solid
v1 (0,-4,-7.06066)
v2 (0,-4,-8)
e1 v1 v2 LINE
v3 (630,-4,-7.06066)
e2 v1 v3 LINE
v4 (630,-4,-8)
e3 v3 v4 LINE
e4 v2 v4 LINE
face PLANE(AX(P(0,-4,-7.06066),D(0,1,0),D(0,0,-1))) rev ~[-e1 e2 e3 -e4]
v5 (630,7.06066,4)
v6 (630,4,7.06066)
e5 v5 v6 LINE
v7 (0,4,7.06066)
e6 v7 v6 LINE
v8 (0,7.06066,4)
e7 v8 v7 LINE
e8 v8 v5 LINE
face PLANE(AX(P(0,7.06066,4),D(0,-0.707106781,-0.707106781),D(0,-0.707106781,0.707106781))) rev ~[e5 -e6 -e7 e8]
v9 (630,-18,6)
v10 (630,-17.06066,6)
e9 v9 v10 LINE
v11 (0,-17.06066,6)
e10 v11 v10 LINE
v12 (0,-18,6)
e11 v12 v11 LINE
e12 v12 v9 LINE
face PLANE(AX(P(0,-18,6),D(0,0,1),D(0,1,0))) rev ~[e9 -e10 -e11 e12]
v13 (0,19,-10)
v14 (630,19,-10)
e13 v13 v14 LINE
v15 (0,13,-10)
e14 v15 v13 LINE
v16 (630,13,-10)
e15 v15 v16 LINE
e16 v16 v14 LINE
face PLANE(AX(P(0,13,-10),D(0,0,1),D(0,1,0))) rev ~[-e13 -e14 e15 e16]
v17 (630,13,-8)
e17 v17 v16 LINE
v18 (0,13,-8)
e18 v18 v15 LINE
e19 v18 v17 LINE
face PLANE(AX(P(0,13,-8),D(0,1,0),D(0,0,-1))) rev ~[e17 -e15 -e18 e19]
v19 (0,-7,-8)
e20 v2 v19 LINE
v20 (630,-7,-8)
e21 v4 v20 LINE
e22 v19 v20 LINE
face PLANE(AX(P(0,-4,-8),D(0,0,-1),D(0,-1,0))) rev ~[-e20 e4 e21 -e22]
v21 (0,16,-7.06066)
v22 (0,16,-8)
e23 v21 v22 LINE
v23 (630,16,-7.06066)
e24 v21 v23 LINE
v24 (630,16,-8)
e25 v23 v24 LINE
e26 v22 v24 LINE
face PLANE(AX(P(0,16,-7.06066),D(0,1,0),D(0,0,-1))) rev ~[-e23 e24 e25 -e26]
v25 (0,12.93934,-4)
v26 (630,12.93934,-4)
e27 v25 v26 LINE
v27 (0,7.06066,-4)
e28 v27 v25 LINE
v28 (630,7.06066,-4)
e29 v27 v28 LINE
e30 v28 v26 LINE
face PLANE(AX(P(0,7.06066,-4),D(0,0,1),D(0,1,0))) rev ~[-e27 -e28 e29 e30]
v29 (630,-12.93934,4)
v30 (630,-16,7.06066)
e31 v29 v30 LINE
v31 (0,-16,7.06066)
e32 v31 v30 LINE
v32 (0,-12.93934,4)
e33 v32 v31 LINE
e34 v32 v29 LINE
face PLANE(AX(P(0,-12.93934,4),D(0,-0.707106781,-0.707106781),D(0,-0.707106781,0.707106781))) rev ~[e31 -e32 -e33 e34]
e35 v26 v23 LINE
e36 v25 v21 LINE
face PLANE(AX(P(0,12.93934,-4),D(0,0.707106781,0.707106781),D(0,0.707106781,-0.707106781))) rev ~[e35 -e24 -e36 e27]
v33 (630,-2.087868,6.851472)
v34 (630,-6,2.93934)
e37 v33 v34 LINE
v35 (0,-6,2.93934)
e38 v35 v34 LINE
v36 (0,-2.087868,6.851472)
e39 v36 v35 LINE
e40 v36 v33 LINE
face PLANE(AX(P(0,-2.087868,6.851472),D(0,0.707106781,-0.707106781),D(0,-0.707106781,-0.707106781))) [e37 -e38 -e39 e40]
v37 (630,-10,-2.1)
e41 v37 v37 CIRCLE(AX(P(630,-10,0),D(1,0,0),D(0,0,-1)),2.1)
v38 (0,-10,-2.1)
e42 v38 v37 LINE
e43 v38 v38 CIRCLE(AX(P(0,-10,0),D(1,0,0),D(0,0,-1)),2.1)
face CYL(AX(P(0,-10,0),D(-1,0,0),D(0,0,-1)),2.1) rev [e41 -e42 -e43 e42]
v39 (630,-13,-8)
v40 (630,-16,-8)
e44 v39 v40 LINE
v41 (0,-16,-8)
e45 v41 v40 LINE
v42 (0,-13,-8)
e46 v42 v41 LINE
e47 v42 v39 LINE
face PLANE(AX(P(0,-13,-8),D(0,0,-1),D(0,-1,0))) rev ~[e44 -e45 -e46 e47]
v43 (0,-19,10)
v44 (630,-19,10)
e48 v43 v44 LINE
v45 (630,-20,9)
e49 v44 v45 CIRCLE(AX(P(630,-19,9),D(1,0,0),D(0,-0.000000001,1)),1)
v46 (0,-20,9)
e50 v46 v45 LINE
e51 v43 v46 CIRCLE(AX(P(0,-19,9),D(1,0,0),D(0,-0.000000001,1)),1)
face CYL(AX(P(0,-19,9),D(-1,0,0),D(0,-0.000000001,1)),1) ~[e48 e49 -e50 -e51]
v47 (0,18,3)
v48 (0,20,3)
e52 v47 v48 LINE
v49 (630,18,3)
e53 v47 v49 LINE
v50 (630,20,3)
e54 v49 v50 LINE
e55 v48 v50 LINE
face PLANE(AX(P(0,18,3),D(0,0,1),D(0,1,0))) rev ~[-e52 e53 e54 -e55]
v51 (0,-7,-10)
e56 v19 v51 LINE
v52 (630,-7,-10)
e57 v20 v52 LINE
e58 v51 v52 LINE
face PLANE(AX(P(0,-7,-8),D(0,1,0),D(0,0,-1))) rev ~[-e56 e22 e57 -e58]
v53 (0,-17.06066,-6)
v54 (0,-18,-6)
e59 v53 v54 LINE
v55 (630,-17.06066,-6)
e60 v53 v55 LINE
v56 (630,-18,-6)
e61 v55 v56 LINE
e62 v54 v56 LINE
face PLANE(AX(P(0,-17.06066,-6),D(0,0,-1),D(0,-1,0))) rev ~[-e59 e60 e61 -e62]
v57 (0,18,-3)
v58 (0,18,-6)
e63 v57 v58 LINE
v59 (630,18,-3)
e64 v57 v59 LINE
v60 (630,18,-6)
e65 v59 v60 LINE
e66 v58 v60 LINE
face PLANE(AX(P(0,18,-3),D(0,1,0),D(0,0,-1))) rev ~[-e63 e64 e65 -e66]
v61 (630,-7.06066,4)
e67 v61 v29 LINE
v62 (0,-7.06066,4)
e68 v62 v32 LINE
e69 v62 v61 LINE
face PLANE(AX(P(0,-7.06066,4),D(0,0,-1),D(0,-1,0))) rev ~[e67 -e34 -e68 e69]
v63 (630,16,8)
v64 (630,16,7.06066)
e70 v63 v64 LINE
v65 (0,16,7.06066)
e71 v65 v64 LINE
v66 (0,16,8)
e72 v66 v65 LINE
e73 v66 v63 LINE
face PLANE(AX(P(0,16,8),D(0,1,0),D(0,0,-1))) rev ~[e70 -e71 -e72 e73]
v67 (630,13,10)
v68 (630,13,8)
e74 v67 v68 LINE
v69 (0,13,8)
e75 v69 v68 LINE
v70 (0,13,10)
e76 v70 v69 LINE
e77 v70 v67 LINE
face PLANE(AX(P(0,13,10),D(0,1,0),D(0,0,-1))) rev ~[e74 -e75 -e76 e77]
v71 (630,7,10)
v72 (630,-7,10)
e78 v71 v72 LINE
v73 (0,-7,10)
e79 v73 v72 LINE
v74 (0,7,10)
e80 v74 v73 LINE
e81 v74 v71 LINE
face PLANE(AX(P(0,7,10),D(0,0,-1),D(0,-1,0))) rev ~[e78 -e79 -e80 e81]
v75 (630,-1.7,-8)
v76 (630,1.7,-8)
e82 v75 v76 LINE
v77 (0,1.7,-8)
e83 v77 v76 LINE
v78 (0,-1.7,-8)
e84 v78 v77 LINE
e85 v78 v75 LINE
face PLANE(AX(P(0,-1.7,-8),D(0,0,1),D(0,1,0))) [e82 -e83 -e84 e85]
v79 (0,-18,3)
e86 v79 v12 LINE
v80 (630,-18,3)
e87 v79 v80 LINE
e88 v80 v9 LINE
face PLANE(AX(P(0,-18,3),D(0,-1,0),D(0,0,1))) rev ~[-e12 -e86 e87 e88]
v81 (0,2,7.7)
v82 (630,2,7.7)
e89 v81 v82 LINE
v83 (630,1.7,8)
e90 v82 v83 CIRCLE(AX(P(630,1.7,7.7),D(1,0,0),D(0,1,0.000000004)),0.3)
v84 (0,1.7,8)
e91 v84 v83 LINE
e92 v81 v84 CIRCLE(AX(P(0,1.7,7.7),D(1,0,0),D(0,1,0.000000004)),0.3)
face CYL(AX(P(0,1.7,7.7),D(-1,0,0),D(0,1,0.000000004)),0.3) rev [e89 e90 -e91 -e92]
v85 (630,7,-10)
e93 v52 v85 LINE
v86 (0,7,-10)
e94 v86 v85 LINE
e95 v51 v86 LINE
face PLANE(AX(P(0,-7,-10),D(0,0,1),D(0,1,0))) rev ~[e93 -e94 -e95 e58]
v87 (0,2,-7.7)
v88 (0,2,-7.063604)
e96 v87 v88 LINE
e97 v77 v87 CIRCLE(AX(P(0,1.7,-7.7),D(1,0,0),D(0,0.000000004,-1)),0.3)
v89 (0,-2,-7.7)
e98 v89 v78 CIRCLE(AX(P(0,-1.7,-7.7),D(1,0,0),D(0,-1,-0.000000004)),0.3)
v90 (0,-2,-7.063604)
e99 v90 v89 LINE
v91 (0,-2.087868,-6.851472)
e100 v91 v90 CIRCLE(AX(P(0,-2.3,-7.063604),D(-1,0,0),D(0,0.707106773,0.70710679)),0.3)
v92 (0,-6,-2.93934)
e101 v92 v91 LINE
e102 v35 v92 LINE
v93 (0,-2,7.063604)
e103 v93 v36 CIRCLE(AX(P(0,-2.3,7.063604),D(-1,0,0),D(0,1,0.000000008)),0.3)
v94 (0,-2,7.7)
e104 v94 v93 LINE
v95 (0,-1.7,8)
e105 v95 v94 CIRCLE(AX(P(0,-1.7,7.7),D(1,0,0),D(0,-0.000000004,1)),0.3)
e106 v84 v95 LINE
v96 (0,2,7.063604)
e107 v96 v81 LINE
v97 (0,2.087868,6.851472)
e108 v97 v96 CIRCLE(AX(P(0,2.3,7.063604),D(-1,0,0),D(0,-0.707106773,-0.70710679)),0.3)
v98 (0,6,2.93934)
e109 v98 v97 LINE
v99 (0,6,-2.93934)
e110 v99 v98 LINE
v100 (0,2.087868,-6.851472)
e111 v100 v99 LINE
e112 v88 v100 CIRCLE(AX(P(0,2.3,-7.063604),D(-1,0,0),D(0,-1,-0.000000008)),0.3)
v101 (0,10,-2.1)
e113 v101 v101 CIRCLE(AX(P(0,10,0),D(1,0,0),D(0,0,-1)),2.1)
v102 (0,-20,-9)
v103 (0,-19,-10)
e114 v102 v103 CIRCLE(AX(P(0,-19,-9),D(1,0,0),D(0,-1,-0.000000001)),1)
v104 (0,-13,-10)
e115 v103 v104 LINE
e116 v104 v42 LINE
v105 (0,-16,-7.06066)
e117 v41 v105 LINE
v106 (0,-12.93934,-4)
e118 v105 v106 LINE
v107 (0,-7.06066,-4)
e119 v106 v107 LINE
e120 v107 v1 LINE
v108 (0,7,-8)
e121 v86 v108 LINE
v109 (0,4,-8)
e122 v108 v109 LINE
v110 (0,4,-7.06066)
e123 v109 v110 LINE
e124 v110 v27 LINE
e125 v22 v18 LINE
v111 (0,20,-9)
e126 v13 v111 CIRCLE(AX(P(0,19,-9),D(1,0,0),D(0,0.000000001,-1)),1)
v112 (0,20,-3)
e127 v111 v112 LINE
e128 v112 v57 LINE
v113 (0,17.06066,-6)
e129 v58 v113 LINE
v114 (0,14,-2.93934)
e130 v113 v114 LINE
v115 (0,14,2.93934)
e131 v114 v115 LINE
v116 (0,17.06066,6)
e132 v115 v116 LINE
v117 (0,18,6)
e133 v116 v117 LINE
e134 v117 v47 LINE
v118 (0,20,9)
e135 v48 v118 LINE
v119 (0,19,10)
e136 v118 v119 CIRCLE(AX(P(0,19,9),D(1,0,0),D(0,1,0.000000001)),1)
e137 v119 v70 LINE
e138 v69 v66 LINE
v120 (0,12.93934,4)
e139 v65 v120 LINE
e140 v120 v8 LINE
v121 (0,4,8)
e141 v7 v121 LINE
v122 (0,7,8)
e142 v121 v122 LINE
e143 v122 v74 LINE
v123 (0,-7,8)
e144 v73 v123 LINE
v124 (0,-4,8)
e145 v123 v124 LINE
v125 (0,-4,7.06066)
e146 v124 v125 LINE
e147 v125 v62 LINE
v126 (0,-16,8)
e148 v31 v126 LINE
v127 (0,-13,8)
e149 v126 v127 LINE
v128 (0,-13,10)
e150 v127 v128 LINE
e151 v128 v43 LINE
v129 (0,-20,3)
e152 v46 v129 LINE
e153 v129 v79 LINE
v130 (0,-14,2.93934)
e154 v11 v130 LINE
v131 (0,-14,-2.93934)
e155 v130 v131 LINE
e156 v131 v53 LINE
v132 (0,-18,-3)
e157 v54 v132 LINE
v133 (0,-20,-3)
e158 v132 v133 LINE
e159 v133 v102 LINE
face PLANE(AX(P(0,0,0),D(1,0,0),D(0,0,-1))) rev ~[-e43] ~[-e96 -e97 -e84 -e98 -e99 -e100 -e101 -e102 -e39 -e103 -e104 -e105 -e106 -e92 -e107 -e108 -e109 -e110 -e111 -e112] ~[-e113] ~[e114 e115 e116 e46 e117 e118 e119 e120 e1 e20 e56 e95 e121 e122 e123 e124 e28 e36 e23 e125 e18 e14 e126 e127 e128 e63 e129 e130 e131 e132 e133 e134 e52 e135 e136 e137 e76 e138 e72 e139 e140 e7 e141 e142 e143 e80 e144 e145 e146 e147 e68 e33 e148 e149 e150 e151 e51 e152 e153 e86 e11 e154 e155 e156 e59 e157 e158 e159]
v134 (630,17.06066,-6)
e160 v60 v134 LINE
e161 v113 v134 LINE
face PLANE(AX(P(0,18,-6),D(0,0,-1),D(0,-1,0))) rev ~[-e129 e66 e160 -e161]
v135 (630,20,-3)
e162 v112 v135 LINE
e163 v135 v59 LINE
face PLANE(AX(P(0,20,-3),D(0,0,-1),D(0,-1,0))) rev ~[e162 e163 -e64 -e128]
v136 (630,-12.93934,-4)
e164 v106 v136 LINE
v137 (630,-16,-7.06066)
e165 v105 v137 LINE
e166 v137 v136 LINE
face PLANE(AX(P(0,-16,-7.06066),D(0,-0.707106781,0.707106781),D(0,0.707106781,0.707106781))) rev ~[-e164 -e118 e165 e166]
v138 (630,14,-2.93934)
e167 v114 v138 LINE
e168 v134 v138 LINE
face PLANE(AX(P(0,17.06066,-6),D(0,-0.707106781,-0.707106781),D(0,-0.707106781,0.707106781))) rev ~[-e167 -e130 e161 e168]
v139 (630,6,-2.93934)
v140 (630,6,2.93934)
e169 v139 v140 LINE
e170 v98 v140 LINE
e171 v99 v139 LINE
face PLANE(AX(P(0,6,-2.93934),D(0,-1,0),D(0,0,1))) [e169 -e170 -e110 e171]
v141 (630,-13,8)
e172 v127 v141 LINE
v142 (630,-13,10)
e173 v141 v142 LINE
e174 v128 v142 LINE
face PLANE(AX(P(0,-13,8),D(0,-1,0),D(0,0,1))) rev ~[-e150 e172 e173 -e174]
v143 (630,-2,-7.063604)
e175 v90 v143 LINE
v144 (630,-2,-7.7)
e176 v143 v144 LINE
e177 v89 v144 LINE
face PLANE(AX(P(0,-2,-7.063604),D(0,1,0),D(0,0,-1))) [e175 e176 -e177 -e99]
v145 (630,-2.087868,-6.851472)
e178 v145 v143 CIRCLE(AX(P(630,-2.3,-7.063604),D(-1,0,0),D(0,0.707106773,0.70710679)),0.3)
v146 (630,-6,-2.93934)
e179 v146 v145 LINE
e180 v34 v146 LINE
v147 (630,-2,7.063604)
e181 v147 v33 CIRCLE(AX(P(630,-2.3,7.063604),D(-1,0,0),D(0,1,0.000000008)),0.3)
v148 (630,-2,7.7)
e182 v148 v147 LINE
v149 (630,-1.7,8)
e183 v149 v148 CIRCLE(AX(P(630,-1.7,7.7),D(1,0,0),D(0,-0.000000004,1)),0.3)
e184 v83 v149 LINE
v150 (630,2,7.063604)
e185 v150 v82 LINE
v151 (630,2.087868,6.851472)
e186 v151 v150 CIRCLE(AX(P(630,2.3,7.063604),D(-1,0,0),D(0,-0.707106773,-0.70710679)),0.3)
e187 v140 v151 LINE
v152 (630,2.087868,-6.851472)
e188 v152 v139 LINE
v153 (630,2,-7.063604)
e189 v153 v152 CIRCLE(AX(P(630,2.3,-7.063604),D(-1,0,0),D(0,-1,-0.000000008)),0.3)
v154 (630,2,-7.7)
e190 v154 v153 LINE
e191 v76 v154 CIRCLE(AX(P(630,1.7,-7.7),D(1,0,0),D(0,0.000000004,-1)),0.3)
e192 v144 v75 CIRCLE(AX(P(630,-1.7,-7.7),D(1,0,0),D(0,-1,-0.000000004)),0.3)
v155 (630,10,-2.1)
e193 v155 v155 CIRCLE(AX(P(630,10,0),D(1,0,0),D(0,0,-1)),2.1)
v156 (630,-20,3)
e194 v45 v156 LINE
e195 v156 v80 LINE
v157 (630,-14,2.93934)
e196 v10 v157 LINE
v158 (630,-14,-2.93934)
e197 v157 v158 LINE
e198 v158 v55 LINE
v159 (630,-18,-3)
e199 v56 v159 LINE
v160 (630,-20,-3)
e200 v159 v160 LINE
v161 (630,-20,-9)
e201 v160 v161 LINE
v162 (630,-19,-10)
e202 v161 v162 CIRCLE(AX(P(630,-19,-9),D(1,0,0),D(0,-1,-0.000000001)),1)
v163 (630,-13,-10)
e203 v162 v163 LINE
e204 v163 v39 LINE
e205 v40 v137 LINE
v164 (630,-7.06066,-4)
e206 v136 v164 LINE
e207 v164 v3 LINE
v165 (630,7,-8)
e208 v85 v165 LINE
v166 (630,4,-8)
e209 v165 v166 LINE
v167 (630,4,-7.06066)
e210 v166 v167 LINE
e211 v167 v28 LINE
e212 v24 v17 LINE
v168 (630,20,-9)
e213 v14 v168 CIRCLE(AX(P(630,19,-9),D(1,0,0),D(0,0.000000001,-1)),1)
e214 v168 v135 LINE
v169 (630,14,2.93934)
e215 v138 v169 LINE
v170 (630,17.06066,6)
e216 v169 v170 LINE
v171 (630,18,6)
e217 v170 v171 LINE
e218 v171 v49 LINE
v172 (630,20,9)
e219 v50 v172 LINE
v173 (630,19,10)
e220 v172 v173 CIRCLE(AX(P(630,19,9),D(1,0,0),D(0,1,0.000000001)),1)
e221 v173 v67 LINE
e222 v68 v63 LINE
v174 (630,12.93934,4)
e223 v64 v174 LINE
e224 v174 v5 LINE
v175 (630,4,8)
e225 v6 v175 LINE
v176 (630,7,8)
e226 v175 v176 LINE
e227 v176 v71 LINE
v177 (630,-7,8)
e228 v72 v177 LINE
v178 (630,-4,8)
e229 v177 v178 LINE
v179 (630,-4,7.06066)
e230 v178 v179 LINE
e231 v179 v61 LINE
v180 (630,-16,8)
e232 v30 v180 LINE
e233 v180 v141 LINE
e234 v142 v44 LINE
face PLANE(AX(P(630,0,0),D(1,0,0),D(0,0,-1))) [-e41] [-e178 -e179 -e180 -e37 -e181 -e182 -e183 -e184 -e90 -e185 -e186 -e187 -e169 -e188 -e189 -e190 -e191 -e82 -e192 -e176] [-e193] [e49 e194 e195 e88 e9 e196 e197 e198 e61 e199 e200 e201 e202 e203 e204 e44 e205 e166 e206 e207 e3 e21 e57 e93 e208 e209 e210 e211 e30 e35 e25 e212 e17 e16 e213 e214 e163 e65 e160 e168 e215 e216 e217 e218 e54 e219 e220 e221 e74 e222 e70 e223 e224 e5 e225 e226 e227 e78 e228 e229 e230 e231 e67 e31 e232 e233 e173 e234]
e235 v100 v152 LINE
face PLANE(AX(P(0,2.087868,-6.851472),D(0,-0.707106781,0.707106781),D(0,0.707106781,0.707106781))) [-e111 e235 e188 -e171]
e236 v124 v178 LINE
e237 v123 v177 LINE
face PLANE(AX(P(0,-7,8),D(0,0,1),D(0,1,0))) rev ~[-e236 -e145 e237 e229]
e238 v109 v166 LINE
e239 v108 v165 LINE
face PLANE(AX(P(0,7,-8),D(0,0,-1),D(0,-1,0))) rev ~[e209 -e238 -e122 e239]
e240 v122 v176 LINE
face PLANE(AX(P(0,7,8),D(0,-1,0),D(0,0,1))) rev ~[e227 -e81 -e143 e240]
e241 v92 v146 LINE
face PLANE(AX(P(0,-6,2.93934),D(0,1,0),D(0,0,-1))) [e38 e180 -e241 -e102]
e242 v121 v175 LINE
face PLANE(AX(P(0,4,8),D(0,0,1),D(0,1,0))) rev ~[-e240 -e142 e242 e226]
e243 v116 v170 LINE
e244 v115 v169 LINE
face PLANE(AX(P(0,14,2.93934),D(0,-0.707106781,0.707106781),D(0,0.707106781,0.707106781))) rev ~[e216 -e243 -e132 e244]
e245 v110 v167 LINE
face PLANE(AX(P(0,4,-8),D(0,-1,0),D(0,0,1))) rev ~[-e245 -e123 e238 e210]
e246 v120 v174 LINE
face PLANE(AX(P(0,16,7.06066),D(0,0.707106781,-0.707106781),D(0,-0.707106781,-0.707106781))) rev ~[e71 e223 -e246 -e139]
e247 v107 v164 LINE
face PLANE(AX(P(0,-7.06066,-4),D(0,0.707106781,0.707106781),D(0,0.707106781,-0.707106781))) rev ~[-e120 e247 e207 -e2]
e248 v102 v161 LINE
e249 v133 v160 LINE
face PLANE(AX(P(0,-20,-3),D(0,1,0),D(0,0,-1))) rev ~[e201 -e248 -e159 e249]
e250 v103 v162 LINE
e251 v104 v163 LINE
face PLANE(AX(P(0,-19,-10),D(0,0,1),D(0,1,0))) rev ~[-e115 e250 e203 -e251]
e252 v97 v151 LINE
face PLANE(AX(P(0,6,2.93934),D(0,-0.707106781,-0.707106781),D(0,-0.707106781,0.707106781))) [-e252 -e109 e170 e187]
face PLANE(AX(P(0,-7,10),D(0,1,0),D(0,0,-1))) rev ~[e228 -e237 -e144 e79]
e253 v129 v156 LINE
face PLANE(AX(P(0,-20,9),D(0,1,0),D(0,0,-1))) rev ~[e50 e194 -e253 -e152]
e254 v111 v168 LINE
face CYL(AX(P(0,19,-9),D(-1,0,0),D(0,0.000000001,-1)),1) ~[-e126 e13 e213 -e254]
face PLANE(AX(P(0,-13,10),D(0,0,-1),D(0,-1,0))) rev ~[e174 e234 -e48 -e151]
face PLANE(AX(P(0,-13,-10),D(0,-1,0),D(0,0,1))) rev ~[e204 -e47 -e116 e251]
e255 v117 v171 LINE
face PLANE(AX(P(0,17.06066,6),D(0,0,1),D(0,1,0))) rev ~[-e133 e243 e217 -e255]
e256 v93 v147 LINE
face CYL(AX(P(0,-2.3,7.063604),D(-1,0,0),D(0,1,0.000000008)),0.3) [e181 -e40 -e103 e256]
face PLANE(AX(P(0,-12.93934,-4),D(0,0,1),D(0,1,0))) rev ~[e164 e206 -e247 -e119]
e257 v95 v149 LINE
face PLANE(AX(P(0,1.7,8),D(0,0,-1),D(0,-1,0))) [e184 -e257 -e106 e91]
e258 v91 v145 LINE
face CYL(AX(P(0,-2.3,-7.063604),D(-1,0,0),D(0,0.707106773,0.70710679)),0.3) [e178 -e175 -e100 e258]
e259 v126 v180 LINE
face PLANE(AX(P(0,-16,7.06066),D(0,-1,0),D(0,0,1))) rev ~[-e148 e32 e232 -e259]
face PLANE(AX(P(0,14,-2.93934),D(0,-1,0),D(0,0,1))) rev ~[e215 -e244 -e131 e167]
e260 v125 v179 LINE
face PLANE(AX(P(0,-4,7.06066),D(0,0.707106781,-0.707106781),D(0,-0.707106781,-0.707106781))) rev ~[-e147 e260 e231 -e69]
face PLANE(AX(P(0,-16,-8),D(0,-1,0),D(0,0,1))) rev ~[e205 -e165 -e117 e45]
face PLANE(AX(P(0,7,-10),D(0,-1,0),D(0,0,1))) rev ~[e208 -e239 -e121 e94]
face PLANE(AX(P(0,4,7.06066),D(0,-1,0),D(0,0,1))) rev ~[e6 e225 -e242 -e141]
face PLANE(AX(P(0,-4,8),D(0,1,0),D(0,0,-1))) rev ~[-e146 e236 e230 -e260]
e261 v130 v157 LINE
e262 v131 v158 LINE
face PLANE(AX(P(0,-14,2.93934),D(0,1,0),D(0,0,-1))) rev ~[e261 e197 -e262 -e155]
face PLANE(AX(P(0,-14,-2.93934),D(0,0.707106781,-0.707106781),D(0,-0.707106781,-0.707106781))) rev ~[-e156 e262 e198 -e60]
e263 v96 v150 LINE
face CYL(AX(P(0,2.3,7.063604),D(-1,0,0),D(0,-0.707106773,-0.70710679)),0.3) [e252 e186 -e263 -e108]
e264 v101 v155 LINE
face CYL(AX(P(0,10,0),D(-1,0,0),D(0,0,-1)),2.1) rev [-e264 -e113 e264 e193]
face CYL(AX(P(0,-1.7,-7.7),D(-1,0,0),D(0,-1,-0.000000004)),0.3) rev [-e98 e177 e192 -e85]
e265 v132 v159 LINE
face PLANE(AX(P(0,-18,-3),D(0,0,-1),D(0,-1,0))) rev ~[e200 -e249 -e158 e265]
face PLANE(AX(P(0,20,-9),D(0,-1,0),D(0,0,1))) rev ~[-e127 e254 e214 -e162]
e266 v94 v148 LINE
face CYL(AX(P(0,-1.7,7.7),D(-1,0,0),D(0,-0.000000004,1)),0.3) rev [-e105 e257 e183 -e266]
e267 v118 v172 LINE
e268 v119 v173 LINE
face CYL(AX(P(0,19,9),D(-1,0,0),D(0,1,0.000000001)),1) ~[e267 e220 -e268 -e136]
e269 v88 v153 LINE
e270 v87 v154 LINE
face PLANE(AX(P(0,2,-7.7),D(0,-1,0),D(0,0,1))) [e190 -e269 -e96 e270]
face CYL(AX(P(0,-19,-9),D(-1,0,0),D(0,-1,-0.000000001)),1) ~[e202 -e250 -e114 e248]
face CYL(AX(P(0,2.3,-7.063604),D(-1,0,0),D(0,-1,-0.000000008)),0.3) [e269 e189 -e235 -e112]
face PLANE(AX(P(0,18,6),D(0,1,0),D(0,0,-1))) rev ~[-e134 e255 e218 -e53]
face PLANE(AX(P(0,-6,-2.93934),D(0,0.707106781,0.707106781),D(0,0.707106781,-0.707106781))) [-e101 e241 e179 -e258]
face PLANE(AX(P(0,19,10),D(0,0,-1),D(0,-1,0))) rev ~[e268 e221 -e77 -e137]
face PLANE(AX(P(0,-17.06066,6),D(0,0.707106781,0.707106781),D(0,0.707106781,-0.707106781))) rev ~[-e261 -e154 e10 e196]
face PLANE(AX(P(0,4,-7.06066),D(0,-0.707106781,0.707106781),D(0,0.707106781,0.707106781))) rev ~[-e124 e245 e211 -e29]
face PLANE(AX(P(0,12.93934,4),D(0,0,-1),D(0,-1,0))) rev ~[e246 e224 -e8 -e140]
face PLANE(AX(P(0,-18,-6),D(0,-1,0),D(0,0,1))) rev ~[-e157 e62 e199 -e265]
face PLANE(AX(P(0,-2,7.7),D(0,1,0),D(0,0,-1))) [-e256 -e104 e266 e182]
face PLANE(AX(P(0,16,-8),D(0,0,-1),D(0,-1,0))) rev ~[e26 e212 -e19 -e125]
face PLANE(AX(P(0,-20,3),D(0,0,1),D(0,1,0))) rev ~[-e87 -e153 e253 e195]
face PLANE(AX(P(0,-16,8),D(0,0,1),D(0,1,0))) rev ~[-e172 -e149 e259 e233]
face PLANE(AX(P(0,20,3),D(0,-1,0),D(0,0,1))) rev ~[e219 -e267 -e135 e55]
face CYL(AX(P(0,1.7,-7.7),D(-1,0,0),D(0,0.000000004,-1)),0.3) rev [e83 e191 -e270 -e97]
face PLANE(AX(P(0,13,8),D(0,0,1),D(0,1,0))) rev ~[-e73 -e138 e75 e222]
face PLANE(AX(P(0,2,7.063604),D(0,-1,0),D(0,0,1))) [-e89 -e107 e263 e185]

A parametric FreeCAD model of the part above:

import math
import FreeCAD as App
import Part
import Sketcher
from FreeCAD import Vector
Q = App.Units.Quantity

doc = App.newDocument("Part")
body = doc.addObject("PartDesign::Body", "Body")

# Sketch on YZ plane
sketch1 = doc.addObject("Sketcher::SketchObject", "Sketch")
body.addObject(sketch1)
sketch1.AttachmentSupport = (doc.YZ_Plane, [""])
sketch1.MapMode = "FlatFace"
sketch1.addGeometry(Part.LineSegment(Vector(-13, 10, 0), Vector(-19, 10, 0)), False)
sketch1.addGeometry(Part.ArcOfCircle(Part.Circle(Vector(-19, 9, 0), Vector(0, 0, 1), 1), math.radians(90), math.radians(180)), False)
sketch1.addGeometry(Part.LineSegment(Vector(-20, 9, 0), Vector(-20, 3, 0)), False)
sketch1.addGeometry(Part.LineSegment(Vector(-20, 3, 0), Vector(-18, 3, 0)), False)
sketch1.addGeometry(Part.LineSegment(Vector(-18, 3, 0), Vector(-18, 6, 0)), False)
sketch1.addGeometry(Part.LineSegment(Vector(-18, 6, 0), Vector(-17.06, 6, 0)), False)
sketch1.addGeometry(Part.LineSegment(Vector(-17.06, 6, 0), Vector(-14, 2.94, 0)), False)
sketch1.addGeometry(Part.LineSegment(Vector(-14, 2.94, 0), Vector(-14, -2.94, 0)), False)
sketch1.addGeometry(Part.LineSegment(Vector(-14, -2.94, 0), Vector(-17.06, -6, 0)), False)
sketch1.addGeometry(Part.LineSegment(Vector(-17.06, -6, 0), Vector(-18, -6, 0)), False)
sketch1.addGeometry(Part.LineSegment(Vector(-18, -6, 0), Vector(-18, -3, 0)), False)
sketch1.addGeometry(Part.LineSegment(Vector(-18, -3, 0), Vector(-20, -3, 0)), False)
sketch1.addGeometry(Part.LineSegment(Vector(-20, -3, 0), Vector(-20, -9, 0)), False)
sketch1.addGeometry(Part.ArcOfCircle(Part.Circle(Vector(-19, -9, 0), Vector(0, 0, 1), 1), math.radians(-180), math.radians(-90)), False)
sketch1.addGeometry(Part.LineSegment(Vector(-19, -10, 0), Vector(-13, -10, 0)), False)
sketch1.addGeometry(Part.LineSegment(Vector(-13, -10, 0), Vector(-13, -8, 0)), False)
sketch1.addGeometry(Part.LineSegment(Vector(-13, -8, 0), Vector(-16, -8, 0)), False)
sketch1.addGeometry(Part.LineSegment(Vector(-16, -8, 0), Vector(-16, -7.06, 0)), False)
sketch1.addGeometry(Part.LineSegment(Vector(-16, -7.06, 0), Vector(-12.94, -4, 0)), False)
sketch1.addGeometry(Part.LineSegment(Vector(-12.94, -4, 0), Vector(-7.06, -4, 0)), False)
sketch1.addGeometry(Part.LineSegment(Vector(-7.06, -4, 0), Vector(-4, -7.06, 0)), False)
sketch1.addGeometry(Part.LineSegment(Vector(-4, -7.06, 0), Vector(-4, -8, 0)), False)
sketch1.addGeometry(Part.LineSegment(Vector(-4, -8, 0), Vector(-7, -8, 0)), False)
sketch1.addGeometry(Part.LineSegment(Vector(-7, -8, 0), Vector(-7, -10, 0)), False)
sketch1.addGeometry(Part.LineSegment(Vector(-7, -10, 0), Vector(7, -10, 0)), False)
sketch1.addGeometry(Part.LineSegment(Vector(7, -10, 0), Vector(7, -8, 0)), False)
sketch1.addGeometry(Part.LineSegment(Vector(7, -8, 0), Vector(4, -8, 0)), False)
sketch1.addGeometry(Part.LineSegment(Vector(4, -8, 0), Vector(4, -7.06, 0)), False)
sketch1.addGeometry(Part.LineSegment(Vector(4, -7.06, 0), Vector(7.06, -4, 0)), False)
sketch1.addGeometry(Part.LineSegment(Vector(7.06, -4, 0), Vector(12.94, -4, 0)), False)
sketch1.addGeometry(Part.LineSegment(Vector(12.94, -4, 0), Vector(16, -7.06, 0)), False)
sketch1.addGeometry(Part.LineSegment(Vector(16, -7.06, 0), Vector(16, -8, 0)), False)
sketch1.addGeometry(Part.LineSegment(Vector(16, -8, 0), Vector(13, -8, 0)), False)
sketch1.addGeometry(Part.LineSegment(Vector(13, -8, 0), Vector(13, -10, 0)), False)
sketch1.addGeometry(Part.LineSegment(Vector(13, -10, 0), Vector(19, -10, 0)), False)
sketch1.addGeometry(Part.ArcOfCircle(Part.Circle(Vector(19, -9, 0), Vector(0, 0, 1), 1), math.radians(-90), math.radians(0)), False)
sketch1.addGeometry(Part.LineSegment(Vector(20, -9, 0), Vector(20, -3, 0)), False)
sketch1.addGeometry(Part.LineSegment(Vector(20, -3, 0), Vector(18, -3, 0)), False)
sketch1.addGeometry(Part.LineSegment(Vector(18, -3, 0), Vector(18, -6, 0)), False)
sketch1.addGeometry(Part.LineSegment(Vector(18, -6, 0), Vector(17.06, -6, 0)), False)
sketch1.addGeometry(Part.LineSegment(Vector(17.06, -6, 0), Vector(14, -2.94, 0)), False)
sketch1.addGeometry(Part.LineSegment(Vector(14, -2.94, 0), Vector(14, 2.94, 0)), False)
sketch1.addGeometry(Part.LineSegment(Vector(14, 2.94, 0), Vector(17.06, 6, 0)), False)
sketch1.addGeometry(Part.LineSegment(Vector(17.06, 6, 0), Vector(18, 6, 0)), False)
sketch1.addGeometry(Part.LineSegment(Vector(18, 6, 0), Vector(18, 3, 0)), False)
sketch1.addGeometry(Part.LineSegment(Vector(18, 3, 0), Vector(20, 3, 0)), False)
sketch1.addGeometry(Part.LineSegment(Vector(20, 3, 0), Vector(20, 9, 0)), False)
sketch1.addGeometry(Part.ArcOfCircle(Part.Circle(Vector(19, 9, 0), Vector(0, 0, 1), 1), math.radians(0), math.radians(90)), False)
sketch1.addGeometry(Part.LineSegment(Vector(19, 10, 0), Vector(13, 10, 0)), False)
sketch1.addGeometry(Part.LineSegment(Vector(13, 10, 0), Vector(13, 8, 0)), False)
sketch1.addGeometry(Part.LineSegment(Vector(13, 8, 0), Vector(16, 8, 0)), False)
sketch1.addGeometry(Part.LineSegment(Vector(16, 8, 0), Vector(16, 7.06, 0)), False)
sketch1.addGeometry(Part.LineSegment(Vector(16, 7.06, 0), Vector(12.94, 4, 0)), False)
sketch1.addGeometry(Part.LineSegment(Vector(12.94, 4, 0), Vector(7.06, 4, 0)), False)
sketch1.addGeometry(Part.LineSegment(Vector(7.06, 4, 0), Vector(4, 7.06, 0)), False)
sketch1.addGeometry(Part.LineSegment(Vector(4, 7.06, 0), Vector(4, 8, 0)), False)
sketch1.addGeometry(Part.LineSegment(Vector(4, 8, 0), Vector(7, 8, 0)), False)
sketch1.addGeometry(Part.LineSegment(Vector(7, 8, 0), Vector(7, 10, 0)), False)
sketch1.addGeometry(Part.LineSegment(Vector(7, 10, 0), Vector(-7, 10, 0)), False)
sketch1.addGeometry(Part.LineSegment(Vector(-7, 10, 0), Vector(-7, 8, 0)), False)
sketch1.addGeometry(Part.LineSegment(Vector(-7, 8, 0), Vector(-4, 8, 0)), False)
sketch1.addGeometry(Part.LineSegment(Vector(-4, 8, 0), Vector(-4, 7.06, 0)), False)
sketch1.addGeometry(Part.LineSegment(Vector(-4, 7.06, 0), Vector(-7.06, 4, 0)), False)
sketch1.addGeometry(Part.LineSegment(Vector(-7.06, 4, 0), Vector(-12.94, 4, 0)), False)
sketch1.addGeometry(Part.LineSegment(Vector(-12.94, 4, 0), Vector(-16, 7.06, 0)), False)
sketch1.addGeometry(Part.LineSegment(Vector(-16, 7.06, 0), Vector(-16, 8, 0)), False)
sketch1.addGeometry(Part.LineSegment(Vector(-16, 8, 0), Vector(-13, 8, 0)), False)
sketch1.addGeometry(Part.LineSegment(Vector(-13, 8, 0), Vector(-13, 10, 0)), False)
sketch1.addGeometry(Part.Circle(Vector(-10, 0, 0), Vector(0, 0, 1), 2.1), False)
sketch1.addGeometry(Part.LineSegment(Vector(-1.7, 8, 0), Vector(1.7, 8, 0)), False)
sketch1.addGeometry(Part.ArcOfCircle(Part.Circle(Vector(1.7, 7.7, 0), Vector(0, 0, 1), 0.3), math.radians(0), math.radians(90)), False)
sketch1.addGeometry(Part.LineSegment(Vector(2, 7.7, 0), Vector(2, 7.06, 0)), False)
sketch1.addGeometry(Part.ArcOfCircle(Part.Circle(Vector(2.3, 7.06, 0), Vector(0, 0, 1), 0.3), math.radians(180), math.radians(225)), False)
sketch1.addGeometry(Part.LineSegment(Vector(2.09, 6.85, 0), Vector(6, 2.94, 0)), False)
sketch1.addGeometry(Part.LineSegment(Vector(6, 2.94, 0), Vector(6, -2.94, 0)), False)
sketch1.addGeometry(Part.LineSegment(Vector(6, -2.94, 0), Vector(2.09, -6.85, 0)), False)
sketch1.addGeometry(Part.ArcOfCircle(Part.Circle(Vector(2.3, -7.06, 0), Vector(0, 0, 1), 0.3), math.radians(135), math.radians(180)), False)
sketch1.addGeometry(Part.LineSegment(Vector(2, -7.06, 0), Vector(2, -7.7, 0)), False)
sketch1.addGeometry(Part.ArcOfCircle(Part.Circle(Vector(1.7, -7.7, 0), Vector(0, 0, 1), 0.3), math.radians(-90), math.radians(0)), False)
sketch1.addGeometry(Part.LineSegment(Vector(1.7, -8, 0), Vector(-1.7, -8, 0)), False)
sketch1.addGeometry(Part.ArcOfCircle(Part.Circle(Vector(-1.7, -7.7, 0), Vector(0, 0, 1), 0.3), math.radians(-180), math.radians(-90)), False)
sketch1.addGeometry(Part.LineSegment(Vector(-2, -7.7, 0), Vector(-2, -7.06, 0)), False)
sketch1.addGeometry(Part.ArcOfCircle(Part.Circle(Vector(-2.3, -7.06, 0), Vector(0, 0, 1), 0.3), math.radians(0), math.radians(45)), False)
sketch1.addGeometry(Part.LineSegment(Vector(-2.09, -6.85, 0), Vector(-6, -2.94, 0)), False)
sketch1.addGeometry(Part.LineSegment(Vector(-6, -2.94, 0), Vector(-6, 2.94, 0)), False)
sketch1.addGeometry(Part.LineSegment(Vector(-6, 2.94, 0), Vector(-2.09, 6.85, 0)), False)
sketch1.addGeometry(Part.ArcOfCircle(Part.Circle(Vector(-2.3, 7.06, 0), Vector(0, 0, 1), 0.3), math.radians(-45), math.radians(0)), False)
sketch1.addGeometry(Part.LineSegment(Vector(-2, 7.06, 0), Vector(-2, 7.7, 0)), False)
sketch1.addGeometry(Part.ArcOfCircle(Part.Circle(Vector(-1.7, 7.7, 0), Vector(0, 0, 1), 0.3), math.radians(90), math.radians(180)), False)
sketch1.addGeometry(Part.Circle(Vector(10, 0, 0), Vector(0, 0, 1), 2.1), False)
sketch1.addConstraint(Sketcher.Constraint("Tangent", 0, 2, 1, 1))
sketch1.addConstraint(Sketcher.Constraint("Tangent", 1, 2, 2, 1))
sketch1.addConstraint(Sketcher.Constraint("Coincident", 2, 2, 3, 1))
sketch1.addConstraint(Sketcher.Constraint("Coincident", 3, 2, 4, 1))
sketch1.addConstraint(Sketcher.Constraint("Coincident", 4, 2, 5, 1))
sketch1.addConstraint(Sketcher.Constraint("Coincident", 5, 2, 6, 1))
sketch1.addConstraint(Sketcher.Constraint("Coincident", 6, 2, 7, 1))
sketch1.addConstraint(Sketcher.Constraint("Coincident", 7, 2, 8, 1))
sketch1.addConstraint(Sketcher.Constraint("Coincident", 8, 2, 9, 1))
sketch1.addConstraint(Sketcher.Constraint("Coincident", 9, 2, 10, 1))
sketch1.addConstraint(Sketcher.Constraint("Coincident", 10, 2, 11, 1))
sketch1.addConstraint(Sketcher.Constraint("Coincident", 11, 2, 12, 1))
sketch1.addConstraint(Sketcher.Constraint("Tangent", 12, 2, 13, 1))
sketch1.addConstraint(Sketcher.Constraint("Tangent", 13, 2, 14, 1))
sketch1.addConstraint(Sketcher.Constraint("Coincident", 14, 2, 15, 1))
sketch1.addConstraint(Sketcher.Constraint("Coincident", 15, 2, 16, 1))
sketch1.addConstraint(Sketcher.Constraint("Coincident", 16, 2, 17, 1))
sketch1.addConstraint(Sketcher.Constraint("Coincident", 17, 2, 18, 1))
sketch1.addConstraint(Sketcher.Constraint("Coincident", 18, 2, 19, 1))
sketch1.addConstraint(Sketcher.Constraint("Coincident", 19, 2, 20, 1))
sketch1.addConstraint(Sketcher.Constraint("Coincident", 20, 2, 21, 1))
sketch1.addConstraint(Sketcher.Constraint("Coincident", 21, 2, 22, 1))
sketch1.addConstraint(Sketcher.Constraint("Coincident", 22, 2, 23, 1))
sketch1.addConstraint(Sketcher.Constraint("Coincident", 23, 2, 24, 1))
sketch1.addConstraint(Sketcher.Constraint("Coincident", 24, 2, 25, 1))
sketch1.addConstraint(Sketcher.Constraint("Coincident", 25, 2, 26, 1))
sketch1.addConstraint(Sketcher.Constraint("Coincident", 26, 2, 27, 1))
sketch1.addConstraint(Sketcher.Constraint("Coincident", 27, 2, 28, 1))
sketch1.addConstraint(Sketcher.Constraint("Coincident", 28, 2, 29, 1))
sketch1.addConstraint(Sketcher.Constraint("Coincident", 29, 2, 30, 1))
sketch1.addConstraint(Sketcher.Constraint("Coincident", 30, 2, 31, 1))
sketch1.addConstraint(Sketcher.Constraint("Coincident", 31, 2, 32, 1))
sketch1.addConstraint(Sketcher.Constraint("Coincident", 32, 2, 33, 1))
sketch1.addConstraint(Sketcher.Constraint("Coincident", 33, 2, 34, 1))
sketch1.addConstraint(Sketcher.Constraint("Tangent", 34, 2, 35, 1))
sketch1.addConstraint(Sketcher.Constraint("Tangent", 35, 2, 36, 1))
sketch1.addConstraint(Sketcher.Constraint("Coincident", 36, 2, 37, 1))
sketch1.addConstraint(Sketcher.Constraint("Coincident", 37, 2, 38, 1))
sketch1.addConstraint(Sketcher.Constraint("Coincident", 38, 2, 39, 1))
sketch1.addConstraint(Sketcher.Constraint("Coincident", 39, 2, 40, 1))
sketch1.addConstraint(Sketcher.Constraint("Coincident", 40, 2, 41, 1))
sketch1.addConstraint(Sketcher.Constraint("Coincident", 41, 2, 42, 1))
sketch1.addConstraint(Sketcher.Constraint("Coincident", 42, 2, 43, 1))
sketch1.addConstraint(Sketcher.Constraint("Coincident", 43, 2, 44, 1))
sketch1.addConstraint(Sketcher.Constraint("Coincident", 44, 2, 45, 1))
sketch1.addConstraint(Sketcher.Constraint("Coincident", 45, 2, 46, 1))
sketch1.addConstraint(Sketcher.Constraint("Tangent", 46, 2, 47, 1))
sketch1.addConstraint(Sketcher.Constraint("Tangent", 47, 2, 48, 1))
sketch1.addConstraint(Sketcher.Constraint("Coincident", 48, 2, 49, 1))
sketch1.addConstraint(Sketcher.Constraint("Coincident", 49, 2, 50, 1))
sketch1.addConstraint(Sketcher.Constraint("Coincident", 50, 2, 51, 1))
sketch1.addConstraint(Sketcher.Constraint("Coincident", 51, 2, 52, 1))
sketch1.addConstraint(Sketcher.Constraint("Coincident", 52, 2, 53, 1))
sketch1.addConstraint(Sketcher.Constraint("Coincident", 53, 2, 54, 1))
sketch1.addConstraint(Sketcher.Constraint("Coincident", 54, 2, 55, 1))
sketch1.addConstraint(Sketcher.Constraint("Coincident", 55, 2, 56, 1))
sketch1.addConstraint(Sketcher.Constraint("Coincident", 56, 2, 57, 1))
sketch1.addConstraint(Sketcher.Constraint("Coincident", 57, 2, 58, 1))
sketch1.addConstraint(Sketcher.Constraint("Coincident", 58, 2, 59, 1))
sketch1.addConstraint(Sketcher.Constraint("Coincident", 59, 2, 60, 1))
sketch1.addConstraint(Sketcher.Constraint("Coincident", 60, 2, 61, 1))
sketch1.addConstraint(Sketcher.Constraint("Coincident", 61, 2, 62, 1))
sketch1.addConstraint(Sketcher.Constraint("Coincident", 62, 2, 63, 1))
sketch1.addConstraint(Sketcher.Constraint("Coincident", 63, 2, 64, 1))
sketch1.addConstraint(Sketcher.Constraint("Coincident", 64, 2, 65, 1))
sketch1.addConstraint(Sketcher.Constraint("Coincident", 65, 2, 66, 1))
sketch1.addConstraint(Sketcher.Constraint("Coincident", 66, 2, 67, 1))
sketch1.addConstraint(Sketcher.Constraint("Coincident", 67, 2, 0, 1))
sketch1.addConstraint(Sketcher.Constraint("Tangent", 69, 2, 70, 2))
sketch1.addConstraint(Sketcher.Constraint("Tangent", 70, 1, 71, 1))
sketch1.addConstraint(Sketcher.Constraint("Tangent", 71, 2, 72, 1))
sketch1.addConstraint(Sketcher.Constraint("Tangent", 72, 2, 73, 1))
sketch1.addConstraint(Sketcher.Constraint("Coincident", 73, 2, 74, 1))
sketch1.addConstraint(Sketcher.Constraint("Coincident", 74, 2, 75, 1))
sketch1.addConstraint(Sketcher.Constraint("Tangent", 75, 2, 76, 1))
sketch1.addConstraint(Sketcher.Constraint("Tangent", 76, 2, 77, 1))
sketch1.addConstraint(Sketcher.Constraint("Tangent", 77, 2, 78, 2))
sketch1.addConstraint(Sketcher.Constraint("Tangent", 78, 1, 79, 1))
sketch1.addConstraint(Sketcher.Constraint("Tangent", 79, 2, 80, 2))
sketch1.addConstraint(Sketcher.Constraint("Tangent", 80, 1, 81, 1))
sketch1.addConstraint(Sketcher.Constraint("Tangent", 81, 2, 82, 1))
sketch1.addConstraint(Sketcher.Constraint("Tangent", 82, 2, 83, 1))
sketch1.addConstraint(Sketcher.Constraint("Coincident", 83, 2, 84, 1))
sketch1.addConstraint(Sketcher.Constraint("Coincident", 84, 2, 85, 1))
sketch1.addConstraint(Sketcher.Constraint("Tangent", 85, 2, 86, 1))
sketch1.addConstraint(Sketcher.Constraint("Tangent", 86, 2, 87, 1))
sketch1.addConstraint(Sketcher.Constraint("Tangent", 87, 2, 88, 2))
sketch1.addConstraint(Sketcher.Constraint("Tangent", 88, 1, 69, 1))
sketch1.addConstraint(Sketcher.Constraint("Horizontal", 0))
sketch1.addConstraint(Sketcher.Constraint("Vertical", 2))
sketch1.addConstraint(Sketcher.Constraint("Horizontal", 3))
sketch1.addConstraint(Sketcher.Constraint("Vertical", 4))
sketch1.addConstraint(Sketcher.Constraint("Horizontal", 5))
sketch1.addConstraint(Sketcher.Constraint("Vertical", 7))
sketch1.addConstraint(Sketcher.Constraint("Horizontal", 9))
sketch1.addConstraint(Sketcher.Constraint("Vertical", 10))
sketch1.addConstraint(Sketcher.Constraint("Horizontal", 11))
sketch1.addConstraint(Sketcher.Constraint("Vertical", 12))
sketch1.addConstraint(Sketcher.Constraint("Horizontal", 14))
sketch1.addConstraint(Sketcher.Constraint("Vertical", 15))
sketch1.addConstraint(Sketcher.Constraint("Horizontal", 16))
sketch1.addConstraint(Sketcher.Constraint("Vertical", 17))
sketch1.addConstraint(Sketcher.Constraint("Horizontal", 19))
sketch1.addConstraint(Sketcher.Constraint("Vertical", 21))
sketch1.addConstraint(Sketcher.Constraint("Horizontal", 22))
sketch1.addConstraint(Sketcher.Constraint("Vertical", 23))
sketch1.addConstraint(Sketcher.Constraint("Horizontal", 24))
sketch1.addConstraint(Sketcher.Constraint("Vertical", 25))
sketch1.addConstraint(Sketcher.Constraint("Horizontal", 26))
sketch1.addConstraint(Sketcher.Constraint("Vertical", 27))
sketch1.addConstraint(Sketcher.Constraint("Horizontal", 29))
sketch1.addConstraint(Sketcher.Constraint("Vertical", 31))
sketch1.addConstraint(Sketcher.Constraint("Horizontal", 32))
sketch1.addConstraint(Sketcher.Constraint("Vertical", 33))
sketch1.addConstraint(Sketcher.Constraint("Horizontal", 34))
sketch1.addConstraint(Sketcher.Constraint("Vertical", 36))
sketch1.addConstraint(Sketcher.Constraint("Horizontal", 37))
sketch1.addConstraint(Sketcher.Constraint("Vertical", 38))
sketch1.addConstraint(Sketcher.Constraint("Horizontal", 39))
sketch1.addConstraint(Sketcher.Constraint("Vertical", 41))
sketch1.addConstraint(Sketcher.Constraint("Horizontal", 43))
sketch1.addConstraint(Sketcher.Constraint("Vertical", 44))
sketch1.addConstraint(Sketcher.Constraint("Horizontal", 45))
sketch1.addConstraint(Sketcher.Constraint("Vertical", 46))
sketch1.addConstraint(Sketcher.Constraint("Horizontal", 48))
sketch1.addConstraint(Sketcher.Constraint("Vertical", 49))
sketch1.addConstraint(Sketcher.Constraint("Horizontal", 50))
sketch1.addConstraint(Sketcher.Constraint("Vertical", 51))
sketch1.addConstraint(Sketcher.Constraint("Horizontal", 53))
sketch1.addConstraint(Sketcher.Constraint("Vertical", 55))
sketch1.addConstraint(Sketcher.Constraint("Horizontal", 56))
sketch1.addConstraint(Sketcher.Constraint("Vertical", 57))
sketch1.addConstraint(Sketcher.Constraint("Horizontal", 58))
sketch1.addConstraint(Sketcher.Constraint("Vertical", 59))
sketch1.addConstraint(Sketcher.Constraint("Horizontal", 60))
sketch1.addConstraint(Sketcher.Constraint("Vertical", 61))
sketch1.addConstraint(Sketcher.Constraint("Horizontal", 63))
sketch1.addConstraint(Sketcher.Constraint("Vertical", 65))
sketch1.addConstraint(Sketcher.Constraint("Horizontal", 66))
sketch1.addConstraint(Sketcher.Constraint("Vertical", 67))
sketch1.addConstraint(Sketcher.Constraint("Horizontal", 69))
sketch1.addConstraint(Sketcher.Constraint("Vertical", 71))
sketch1.addConstraint(Sketcher.Constraint("Vertical", 74))
sketch1.addConstraint(Sketcher.Constraint("Vertical", 77))
sketch1.addConstraint(Sketcher.Constraint("Horizontal", 79))
sketch1.addConstraint(Sketcher.Constraint("Vertical", 81))
sketch1.addConstraint(Sketcher.Constraint("Vertical", 84))
sketch1.addConstraint(Sketcher.Constraint("Vertical", 87))
sketch1.addConstraint(Sketcher.Constraint("Equal", 1, 13))
sketch1.addConstraint(Sketcher.Constraint("Equal", 13, 35))
sketch1.addConstraint(Sketcher.Constraint("Equal", 35, 47))
sketch1.addConstraint(Sketcher.Constraint("Equal", 70, 72))
sketch1.addConstraint(Sketcher.Constraint("Equal", 72, 76))
sketch1.addConstraint(Sketcher.Constraint("Equal", 76, 78))
sketch1.addConstraint(Sketcher.Constraint("Equal", 78, 80))
sketch1.addConstraint(Sketcher.Constraint("Equal", 80, 82))
sketch1.addConstraint(Sketcher.Constraint("Equal", 82, 86))
sketch1.addConstraint(Sketcher.Constraint("Equal", 86, 88))
sketch1.addConstraint(Sketcher.Constraint("Equal", 68, 89))
sketch1.addConstraint(Sketcher.Constraint("Symmetric", 1, 3, 35, 3, -1, 1))
sketch1.addConstraint(Sketcher.Constraint("Symmetric", 13, 3, 47, 3, -1, 1))
sketch1.addConstraint(Sketcher.Constraint("Symmetric", 70, 3, 80, 3, -1, 1))
sketch1.addConstraint(Sketcher.Constraint("Symmetric", 76, 3, 86, 3, -1, 1))
sketch1.addConstraint(Sketcher.Constraint("Symmetric", 68, 3, 89, 3, -1, 1))
sketch1.addConstraint(Sketcher.Constraint("Symmetric", 3, 2, 37, 2, -1, 1))
sketch1.addConstraint(Sketcher.Constraint("Symmetric", 5, 2, 39, 2, -1, 1))
sketch1.addConstraint(Sketcher.Constraint("Symmetric", 6, 2, 40, 2, -1, 1))
sketch1.addConstraint(Sketcher.Constraint("Symmetric", 8, 2, 42, 2, -1, 1))
sketch1.addConstraint(Sketcher.Constraint("Symmetric", 10, 2, 44, 2, -1, 1))
sketch1.addConstraint(Sketcher.Constraint("Symmetric", 15, 2, 49, 2, -1, 1))
sketch1.addConstraint(Sketcher.Constraint("Symmetric", 17, 2, 51, 2, -1, 1))
sketch1.addConstraint(Sketcher.Constraint("Symmetric", 18, 2, 52, 2, -1, 1))
sketch1.addConstraint(Sketcher.Constraint("Symmetric", 20, 2, 54, 2, -1, 1))
sketch1.addConstraint(Sketcher.Constraint("Symmetric", 22, 2, 56, 2, -1, 1))
sketch1.addConstraint(Sketcher.Constraint("Symmetric", 24, 2, 58, 2, -1, 1))
sketch1.addConstraint(Sketcher.Constraint("Symmetric", 26, 2, 60, 2, -1, 1))
sketch1.addConstraint(Sketcher.Constraint("Symmetric", 28, 2, 62, 2, -1, 1))
sketch1.addConstraint(Sketcher.Constraint("Symmetric", 30, 2, 64, 2, -1, 1))
sketch1.addConstraint(Sketcher.Constraint("Symmetric", 32, 2, 66, 2, -1, 1))
sketch1.addConstraint(Sketcher.Constraint("Symmetric", 72, 2, 82, 2, -1, 1))
sketch1.addConstraint(Sketcher.Constraint("Symmetric", 74, 2, 84, 2, -1, 1))
sketch1.addConstraint(Sketcher.Constraint("Symmetric", 13, 3, 35, 3, -2))
sketch1.addConstraint(Sketcher.Constraint("Symmetric", 76, 3, 82, 3, -2))
sketch1.addConstraint(Sketcher.Constraint("Symmetric", 22, 2, 25, 2, -2))
sketch1.addConstraint(Sketcher.Constraint("Symmetric", 20, 2, 27, 2, -2))
sketch1.addConstraint(Sketcher.Constraint("Symmetric", 19, 2, 28, 2, -2))
sketch1.addConstraint(Sketcher.Constraint("Symmetric", 17, 2, 30, 2, -2))
sketch1.addConstraint(Sketcher.Constraint("Symmetric", 15, 2, 32, 2, -2))
sketch1.addConstraint(Sketcher.Constraint("Symmetric", 10, 2, 37, 2, -2))
sketch1.addConstraint(Sketcher.Constraint("Symmetric", 8, 2, 39, 2, -2))
sketch1.addConstraint(Sketcher.Constraint("PointOnObject", 68, 3, -1))
sketch1.addConstraint(Sketcher.Constraint("Perpendicular", 6, 8))
sketch1.addConstraint(Sketcher.Constraint("Parallel", 8, 18))
sketch1.addConstraint(Sketcher.Constraint("Perpendicular", 18, 20))
sketch1.addConstraint(Sketcher.Constraint("Perpendicular", 20, 28))
sketch1.addConstraint(Sketcher.Constraint("Perpendicular", 28, 30))
sketch1.addConstraint(Sketcher.Constraint("Perpendicular", 40, 42))
sketch1.addConstraint(Sketcher.Constraint("Perpendicular", 52, 54))
sketch1.addConstraint(Sketcher.Constraint("Perpendicular", 54, 62))
sketch1.addConstraint(Sketcher.Constraint("Perpendicular", 62, 64))
sketch1.addConstraint(Sketcher.Constraint("Parallel", 64, 73))
sketch1.addConstraint(Sketcher.Constraint("Perpendicular", 73, 75))
sketch1.addConstraint(Sketcher.Constraint("Horizontal", 17, 2, 20, 2))
sketch1.addConstraint(Sketcher.Constraint("Horizontal", 16, 2, 21, 2))
sketch1.addConstraint(Sketcher.Constraint("Horizontal", 14, 2, 23, 2))
sketch1.addConstraint(Sketcher.Constraint("Horizontal", 66, 2, 69, 2))
sketch1.addConstraint(Sketcher.Constraint("Horizontal", 41, 2, 73, 2))
sketch1.addConstraint(Sketcher.Constraint("Equal", 16, 22))
sketch1.addConstraint(Sketcher.Constraint("Equal", 48, 2))
sketch1.addConstraint(Sketcher.Constraint("Equal", 66, 4))
sketch1.addConstraint(Sketcher.Constraint("Equal", 63, 7))
sketch1.addConstraint(Sketcher.Constraint("Equal", 45, 15))
sketch1.addConstraint(Sketcher.Constraint("Equal", 43, 17))
sketch1.addConstraint(Sketcher.Constraint("Equal", 8, 18))
sketch1.addConstraint(Sketcher.Constraint("Radius", 1, Q("1 mm")))
sketch1.addConstraint(Sketcher.Constraint("Diameter", 68, Q("4.2 mm")))
sketch1.addConstraint(Sketcher.Constraint("Radius", 70, Q("0.3 mm")))
sketch1.addConstraint(Sketcher.Constraint("DistanceX", 0, 2, 0, 1, Q("6 mm")))
sketch1.addConstraint(Sketcher.Constraint("DistanceX", 3, 1, 3, 2, Q("2 mm")))
sketch1.addConstraint(Sketcher.Constraint("DistanceX", 16, 2, 16, 1, Q("3 mm")))
sketch1.addConstraint(Sketcher.Constraint("DistanceX", 24, 1, 24, 2, Q("14 mm")))
sketch1.addConstraint(Sketcher.Constraint("DistanceX", 69, 1, 69, 2, Q("3.4 mm")))
sketch1.addConstraint(Sketcher.Constraint("DistanceX", 1, 3, -1, 1, Q("19 mm")))
sketch1.addConstraint(Sketcher.Constraint("DistanceX", 68, 3, -1, 1, Q("10 mm")))
sketch1.addConstraint(Sketcher.Constraint("DistanceX", 6, 2, -1, 1, Q("14 mm")))
sketch1.addConstraint(Sketcher.Constraint("DistanceX", -1, 1, 73, 2, Q("6 mm")))
sketch1.addConstraint(Sketcher.Constraint("DistanceX", 5, 1, 5, 2, Q("0.93934 mm")))
pad1 = doc.addObject("PartDesign::Pad", "Pad")
body.addObject(pad1)
pad1.Profile = sketch1
pad1.Length = 630

doc.recompute()
